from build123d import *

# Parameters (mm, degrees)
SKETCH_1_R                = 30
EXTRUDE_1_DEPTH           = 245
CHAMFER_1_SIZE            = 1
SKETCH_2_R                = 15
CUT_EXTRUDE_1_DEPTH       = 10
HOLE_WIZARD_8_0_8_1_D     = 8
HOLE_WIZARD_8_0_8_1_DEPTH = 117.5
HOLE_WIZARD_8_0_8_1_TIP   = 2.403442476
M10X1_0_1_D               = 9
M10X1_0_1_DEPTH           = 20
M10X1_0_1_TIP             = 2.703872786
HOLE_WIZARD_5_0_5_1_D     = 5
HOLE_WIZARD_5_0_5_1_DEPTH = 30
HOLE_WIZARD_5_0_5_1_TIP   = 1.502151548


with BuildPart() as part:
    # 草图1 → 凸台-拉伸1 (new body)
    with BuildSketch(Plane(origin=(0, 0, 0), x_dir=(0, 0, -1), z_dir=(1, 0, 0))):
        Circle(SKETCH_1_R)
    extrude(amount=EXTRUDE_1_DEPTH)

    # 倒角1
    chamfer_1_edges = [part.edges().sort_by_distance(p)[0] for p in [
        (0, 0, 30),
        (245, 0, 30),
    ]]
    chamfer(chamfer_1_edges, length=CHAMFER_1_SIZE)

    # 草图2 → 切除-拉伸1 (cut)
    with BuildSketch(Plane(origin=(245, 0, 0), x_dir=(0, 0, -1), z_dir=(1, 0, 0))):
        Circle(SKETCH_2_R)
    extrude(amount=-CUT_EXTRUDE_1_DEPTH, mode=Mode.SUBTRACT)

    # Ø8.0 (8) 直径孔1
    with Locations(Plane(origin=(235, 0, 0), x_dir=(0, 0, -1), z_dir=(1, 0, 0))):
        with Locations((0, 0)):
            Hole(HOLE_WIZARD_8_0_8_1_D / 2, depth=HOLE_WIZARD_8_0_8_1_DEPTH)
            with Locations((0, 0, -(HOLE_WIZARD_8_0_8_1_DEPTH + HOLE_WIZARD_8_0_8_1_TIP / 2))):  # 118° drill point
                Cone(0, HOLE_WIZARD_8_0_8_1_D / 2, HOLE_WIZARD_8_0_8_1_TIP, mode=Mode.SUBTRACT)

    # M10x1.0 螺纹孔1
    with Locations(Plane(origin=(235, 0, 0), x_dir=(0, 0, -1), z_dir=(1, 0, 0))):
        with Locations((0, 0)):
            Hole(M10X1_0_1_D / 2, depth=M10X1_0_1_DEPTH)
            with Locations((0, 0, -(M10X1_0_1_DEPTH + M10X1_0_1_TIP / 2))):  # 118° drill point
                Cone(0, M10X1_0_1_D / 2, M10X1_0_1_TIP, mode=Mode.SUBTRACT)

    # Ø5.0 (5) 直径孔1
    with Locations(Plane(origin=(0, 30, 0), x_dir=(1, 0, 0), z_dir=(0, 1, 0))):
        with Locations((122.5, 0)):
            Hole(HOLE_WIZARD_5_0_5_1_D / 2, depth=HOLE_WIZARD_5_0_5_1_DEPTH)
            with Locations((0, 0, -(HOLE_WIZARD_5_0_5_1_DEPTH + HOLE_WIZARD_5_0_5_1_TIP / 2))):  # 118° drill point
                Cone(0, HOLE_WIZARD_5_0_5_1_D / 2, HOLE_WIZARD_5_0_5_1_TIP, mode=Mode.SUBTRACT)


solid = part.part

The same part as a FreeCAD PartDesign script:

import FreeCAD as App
import Part
import Sketcher

V = App.Vector


def edges_at(feature, points):
    """Names of the edges that pass closest to the given points."""
    edges = feature.Shape.Edges
    near = lambda p: min(range(len(edges)), key=lambda i: edges[i].distToShape(Part.Vertex(*p))[0])
    return sorted({f"Edge{near(p) + 1}" for p in points})

doc = App.newDocument("Part")
body = doc.addObject("PartDesign::Body", "Body")

# Sketch on YZ plane
sketch1 = doc.addObject("Sketcher::SketchObject", "Sketch")
body.addObject(sketch1)
sketch1.AttachmentSupport = (doc.YZ_Plane, [""])
sketch1.MapMode = "FlatFace"
sketch1.addGeometry(Part.Circle(V(0, 0, 0), V(0, 0, 1), 30), False)
sketch1.addConstraint([
    Sketcher.Constraint("Coincident", 0, 3, -1, 1),
    Sketcher.Constraint("Diameter", 0, 60.0),
])
pad1 = doc.addObject("PartDesign::Pad", "Pad")
body.addObject(pad1)
pad1.Profile = sketch1
pad1.Length = 245
doc.recompute()

chamfer = doc.addObject("PartDesign::Chamfer", "Chamfer")
body.addObject(chamfer)
chamfer.Base = (pad1, edges_at(pad1, [(0, 0, 30), (245, 0, 30)]))
chamfer.Size = 1

# Sketch on YZ plane
sketch2 = doc.addObject("Sketcher::SketchObject", "Sketch001")
body.addObject(sketch2)
sketch2.AttachmentSupport = (doc.YZ_Plane, [""])
sketch2.MapMode = "FlatFace"
sketch2.AttachmentOffset = App.Placement(V(0, 0, 245), App.Rotation())
sketch2.addGeometry(Part.Circle(V(0, 0, 0), V(0, 0, 1), 15), False)
sketch2.addConstraint([
    Sketcher.Constraint("Coincident", 0, 3, -1, 1),
    Sketcher.Constraint("Diameter", 0, 30.0),
])
pocket1 = doc.addObject("PartDesign::Pocket", "Pocket")
body.addObject(pocket1)
pocket1.Profile = sketch2
pocket1.Length = 10

# Sketch on YZ plane
sketch3 = doc.addObject("Sketcher::SketchObject", "Sketch002")
body.addObject(sketch3)
sketch3.AttachmentSupport = (doc.YZ_Plane, [""])
sketch3.MapMode = "FlatFace"
sketch3.AttachmentOffset = App.Placement(V(0, 0, 235), App.Rotation())
sketch3.addGeometry(Part.Circle(V(0, 0, 0), V(0, 0, 1), 4), False)
sketch3.addConstraint([
    Sketcher.Constraint("Coincident", 0, 3, -1, 1),
    Sketcher.Constraint("Diameter", 0, 8.0),
])
doc.recompute()
hole = doc.addObject("PartDesign::Hole", "Hole")
body.addObject(hole)
hole.Profile = sketch3
hole.ThreadType = "None"
hole.Diameter = 8
hole.DepthType = "Dimension"
hole.Depth = 117.5
hole.DrillPoint = "Angled"
hole.DrillPointAngle = 118

# Sketch on YZ plane
sketch4 = doc.addObject("Sketcher::SketchObject", "Sketch003")
body.addObject(sketch4)
sketch4.AttachmentSupport = (doc.YZ_Plane, [""])
sketch4.MapMode = "FlatFace"
sketch4.AttachmentOffset = App.Placement(V(0, 0, 235), App.Rotation())
sketch4.addGeometry(Part.Circle(V(0, 0, 0), V(0, 0, 1), 4.5), False)
sketch4.addConstraint([
    Sketcher.Constraint("Coincident", 0, 3, -1, 1),
    Sketcher.Constraint("Diameter", 0, 9.0),
])
doc.recompute()
hole2 = doc.addObject("PartDesign::Hole", "Hole001")
body.addObject(hole2)
hole2.Profile = sketch4
hole2.ThreadType = "None"
hole2.Diameter = 9
hole2.DepthType = "Dimension"
hole2.Depth = 20
hole2.DrillPoint = "Angled"
hole2.DrillPointAngle = 118

# Sketch on XZ plane
sketch5 = doc.addObject("Sketcher::SketchObject", "Sketch004")
body.addObject(sketch5)
sketch5.AttachmentSupport = (doc.XZ_Plane, [""])
sketch5.MapMode = "FlatFace"
sketch5.AttachmentOffset = App.Placement(V(0, 0, -30), App.Rotation())
sketch5.addGeometry(Part.Circle(V(122.5, 0, 0), V(0, 0, 1), 2.5), False)
sketch5.addConstraint([
    Sketcher.Constraint("PointOnObject", 0, 3, -1),
    Sketcher.Constraint("Diameter", 0, 5.0),
    Sketcher.Constraint("DistanceX", -1, 1, 0, 3, 122.5),
])
doc.recompute()
hole3 = doc.addObject("PartDesign::Hole", "Hole002")
body.addObject(hole3)
hole3.Profile = sketch5
hole3.ThreadType = "None"
hole3.Diameter = 5
hole3.DepthType = "Dimension"
hole3.Depth = 30
hole3.DrillPoint = "Angled"
hole3.DrillPointAngle = 118
hole3.Reversed = True

doc.recompute()
